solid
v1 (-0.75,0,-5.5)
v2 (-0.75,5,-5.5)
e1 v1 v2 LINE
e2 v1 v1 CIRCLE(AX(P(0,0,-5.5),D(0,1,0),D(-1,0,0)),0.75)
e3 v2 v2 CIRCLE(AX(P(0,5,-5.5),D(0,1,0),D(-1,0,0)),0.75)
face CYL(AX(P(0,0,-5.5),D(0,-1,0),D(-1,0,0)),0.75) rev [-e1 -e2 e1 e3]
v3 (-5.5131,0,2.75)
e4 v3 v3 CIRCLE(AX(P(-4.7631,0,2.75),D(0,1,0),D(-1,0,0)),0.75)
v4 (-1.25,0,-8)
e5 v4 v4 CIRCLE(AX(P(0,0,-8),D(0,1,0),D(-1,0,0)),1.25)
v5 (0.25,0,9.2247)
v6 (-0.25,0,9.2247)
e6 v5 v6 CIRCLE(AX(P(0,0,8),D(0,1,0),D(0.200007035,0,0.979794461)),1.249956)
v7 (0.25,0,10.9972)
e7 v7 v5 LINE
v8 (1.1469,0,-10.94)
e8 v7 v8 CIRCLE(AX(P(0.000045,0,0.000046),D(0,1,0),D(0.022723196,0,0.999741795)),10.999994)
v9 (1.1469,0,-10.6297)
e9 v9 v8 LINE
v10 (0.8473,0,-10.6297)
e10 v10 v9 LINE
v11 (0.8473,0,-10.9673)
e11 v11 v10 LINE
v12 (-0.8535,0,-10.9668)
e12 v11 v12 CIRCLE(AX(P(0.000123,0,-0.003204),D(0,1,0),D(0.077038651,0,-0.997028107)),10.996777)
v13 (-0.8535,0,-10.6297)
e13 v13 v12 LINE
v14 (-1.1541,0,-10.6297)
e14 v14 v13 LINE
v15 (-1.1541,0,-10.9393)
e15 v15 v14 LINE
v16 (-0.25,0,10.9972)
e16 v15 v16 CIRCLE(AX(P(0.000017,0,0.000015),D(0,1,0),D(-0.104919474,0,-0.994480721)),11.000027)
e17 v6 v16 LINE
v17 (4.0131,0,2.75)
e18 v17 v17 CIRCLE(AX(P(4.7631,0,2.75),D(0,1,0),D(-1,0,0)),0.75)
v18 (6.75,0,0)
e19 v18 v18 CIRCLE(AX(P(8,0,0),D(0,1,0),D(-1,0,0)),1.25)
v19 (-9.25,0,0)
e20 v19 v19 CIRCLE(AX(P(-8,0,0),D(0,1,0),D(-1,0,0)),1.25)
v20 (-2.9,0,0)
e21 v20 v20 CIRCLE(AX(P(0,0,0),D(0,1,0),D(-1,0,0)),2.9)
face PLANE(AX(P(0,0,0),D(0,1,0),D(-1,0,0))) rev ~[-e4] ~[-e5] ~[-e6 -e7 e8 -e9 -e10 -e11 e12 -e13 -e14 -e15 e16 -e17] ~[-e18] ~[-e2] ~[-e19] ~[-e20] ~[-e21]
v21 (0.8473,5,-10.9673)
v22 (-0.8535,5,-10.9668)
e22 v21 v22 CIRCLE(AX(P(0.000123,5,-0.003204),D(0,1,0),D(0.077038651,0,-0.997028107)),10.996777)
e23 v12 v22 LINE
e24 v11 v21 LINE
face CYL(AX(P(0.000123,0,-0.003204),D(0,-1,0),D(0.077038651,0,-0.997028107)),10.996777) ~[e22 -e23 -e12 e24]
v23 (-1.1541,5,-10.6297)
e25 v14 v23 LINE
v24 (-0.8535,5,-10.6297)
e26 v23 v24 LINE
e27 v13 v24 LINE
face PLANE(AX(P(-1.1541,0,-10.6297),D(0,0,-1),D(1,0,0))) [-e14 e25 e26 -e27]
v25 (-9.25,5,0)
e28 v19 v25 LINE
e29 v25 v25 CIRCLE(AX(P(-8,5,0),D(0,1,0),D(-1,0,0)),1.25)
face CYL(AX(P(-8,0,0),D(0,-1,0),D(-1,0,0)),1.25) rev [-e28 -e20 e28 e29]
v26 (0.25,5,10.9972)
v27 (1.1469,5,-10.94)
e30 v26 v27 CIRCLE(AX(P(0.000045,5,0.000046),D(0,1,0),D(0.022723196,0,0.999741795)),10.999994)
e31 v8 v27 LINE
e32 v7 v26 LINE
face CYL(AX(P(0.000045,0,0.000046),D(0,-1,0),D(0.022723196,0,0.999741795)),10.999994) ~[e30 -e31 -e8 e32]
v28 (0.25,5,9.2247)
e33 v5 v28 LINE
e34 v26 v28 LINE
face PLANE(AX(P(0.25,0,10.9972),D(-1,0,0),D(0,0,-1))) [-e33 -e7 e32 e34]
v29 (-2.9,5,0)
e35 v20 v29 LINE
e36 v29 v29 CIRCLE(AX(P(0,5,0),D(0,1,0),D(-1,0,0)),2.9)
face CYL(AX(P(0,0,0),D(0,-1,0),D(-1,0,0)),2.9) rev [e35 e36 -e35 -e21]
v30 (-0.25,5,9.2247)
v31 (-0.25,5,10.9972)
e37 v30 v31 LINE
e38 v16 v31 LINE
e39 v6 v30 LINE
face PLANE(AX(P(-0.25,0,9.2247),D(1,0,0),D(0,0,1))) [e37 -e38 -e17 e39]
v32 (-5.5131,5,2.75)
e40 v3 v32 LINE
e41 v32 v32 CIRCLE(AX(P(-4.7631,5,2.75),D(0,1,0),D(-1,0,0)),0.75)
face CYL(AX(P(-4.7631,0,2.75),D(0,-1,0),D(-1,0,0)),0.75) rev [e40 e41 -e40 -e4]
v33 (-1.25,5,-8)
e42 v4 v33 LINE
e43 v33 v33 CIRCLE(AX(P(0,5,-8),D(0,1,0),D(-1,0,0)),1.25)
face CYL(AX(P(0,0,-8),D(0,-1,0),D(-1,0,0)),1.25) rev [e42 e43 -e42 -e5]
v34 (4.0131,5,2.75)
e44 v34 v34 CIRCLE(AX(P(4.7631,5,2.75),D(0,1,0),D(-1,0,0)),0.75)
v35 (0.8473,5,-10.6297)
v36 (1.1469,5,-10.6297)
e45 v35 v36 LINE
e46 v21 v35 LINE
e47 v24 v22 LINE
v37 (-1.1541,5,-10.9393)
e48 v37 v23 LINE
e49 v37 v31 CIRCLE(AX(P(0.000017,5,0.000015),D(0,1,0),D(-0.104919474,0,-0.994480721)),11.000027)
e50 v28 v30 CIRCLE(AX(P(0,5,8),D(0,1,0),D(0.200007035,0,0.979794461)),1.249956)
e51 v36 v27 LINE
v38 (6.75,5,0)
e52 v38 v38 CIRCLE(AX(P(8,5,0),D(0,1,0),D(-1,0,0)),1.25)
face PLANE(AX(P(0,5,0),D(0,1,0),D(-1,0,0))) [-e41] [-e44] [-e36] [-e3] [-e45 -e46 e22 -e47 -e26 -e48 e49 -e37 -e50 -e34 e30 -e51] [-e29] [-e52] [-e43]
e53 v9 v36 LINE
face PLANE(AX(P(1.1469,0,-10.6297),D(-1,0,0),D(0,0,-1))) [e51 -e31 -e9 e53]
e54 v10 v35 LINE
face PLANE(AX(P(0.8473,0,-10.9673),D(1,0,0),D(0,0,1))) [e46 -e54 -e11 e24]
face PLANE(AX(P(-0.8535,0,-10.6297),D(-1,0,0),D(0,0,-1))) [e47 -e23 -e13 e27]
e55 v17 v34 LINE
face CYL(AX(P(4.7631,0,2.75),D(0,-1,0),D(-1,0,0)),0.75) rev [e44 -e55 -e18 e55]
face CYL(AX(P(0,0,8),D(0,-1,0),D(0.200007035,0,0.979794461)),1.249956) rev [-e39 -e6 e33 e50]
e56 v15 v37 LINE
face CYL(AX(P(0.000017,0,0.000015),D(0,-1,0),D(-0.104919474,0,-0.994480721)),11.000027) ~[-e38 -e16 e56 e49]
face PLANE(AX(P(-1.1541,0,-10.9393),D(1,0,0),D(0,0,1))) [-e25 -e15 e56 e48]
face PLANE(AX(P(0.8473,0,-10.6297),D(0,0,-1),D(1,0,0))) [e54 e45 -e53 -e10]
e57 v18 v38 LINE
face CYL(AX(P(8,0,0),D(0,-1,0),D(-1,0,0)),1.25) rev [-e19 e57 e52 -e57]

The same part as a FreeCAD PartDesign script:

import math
import FreeCAD as App
import Part
import Sketcher

V = App.Vector
Q = App.Units.Quantity

doc = App.newDocument("Part")
body = doc.addObject("PartDesign::Body", "Body")

# Sketch on XZ plane
sketch1 = body.newObject("Sketcher::SketchObject", "Sketch")
sketch1.AttachmentSupport = (doc.getObject("XZ_Plane"), [""])
sketch1.MapMode = "FlatFace"
sketch1.addGeometry([
    Part.ArcOfCircle(Part.Circle(V(0, 8, 0), V(0, 0, 1), 1.25), math.radians(102), math.radians(438)),  # 0
    Part.LineSegment(V(0.25, 9.22, 0), V(0.25, 11, 0)),  # 1
    Part.ArcOfCircle(Part.Circle(V(0, 0, 0), V(0, 0, 1), 11), math.radians(-84), math.radians(89)),  # 2
    Part.LineSegment(V(1.15, -10.94, 0), V(1.15, -10.63, 0)),  # 3
    Part.LineSegment(V(1.15, -10.63, 0), V(0.85, -10.63, 0)),  # 4
    Part.LineSegment(V(0.85, -10.63, 0), V(0.85, -10.97, 0)),  # 5
    Part.ArcOfCircle(Part.Circle(V(0, 0, 0), V(0, 0, 1), 11), math.radians(-94.45), math.radians(-85.58)),  # 6
    Part.LineSegment(V(-0.85, -10.97, 0), V(-0.85, -10.63, 0)),  # 7
    Part.LineSegment(V(-0.85, -10.63, 0), V(-1.15, -10.63, 0)),  # 8
    Part.LineSegment(V(-1.15, -10.63, 0), V(-1.15, -10.94, 0)),  # 9
    Part.ArcOfCircle(Part.Circle(V(0, 0, 0), V(0, 0, 1), 11), math.radians(91), math.radians(264)),  # 10
    Part.LineSegment(V(-0.25, 11, 0), V(-0.25, 9.22, 0)),  # 11
    Part.Circle(V(0, -8, 0), V(0, 0, 1), 1.25),  # 12
    Part.Circle(V(0, -5.5, 0), V(0, 0, 1), 0.75),  # 13
    Part.Circle(V(8, 0, 0), V(0, 0, 1), 1.25),  # 14
    Part.Circle(V(4.76, 2.75, 0), V(0, 0, 1), 0.75),  # 15
    Part.Circle(V(0, 0, 0), V(0, 0, 1), 2.9),  # 16
    Part.Circle(V(-4.76, 2.75, 0), V(0, 0, 1), 0.75),  # 17
    Part.Circle(V(-8, 0, 0), V(0, 0, 1), 1.25),  # 18
], False)
sketch1.addConstraint([
    Sketcher.Constraint("Coincident", 0, 2, 1, 1),
    Sketcher.Constraint("Coincident", 1, 2, 2, 2),
    Sketcher.Constraint("Coincident", 2, 1, 3, 1),
    Sketcher.Constraint("Coincident", 3, 2, 4, 1),
    Sketcher.Constraint("Coincident", 4, 2, 5, 1),
    Sketcher.Constraint("Coincident", 5, 2, 6, 2),
    Sketcher.Constraint("Coincident", 6, 1, 7, 1),
    Sketcher.Constraint("Coincident", 7, 2, 8, 1),
    Sketcher.Constraint("Coincident", 8, 2, 9, 1),
    Sketcher.Constraint("Coincident", 9, 2, 10, 2),
    Sketcher.Constraint("Coincident", 10, 1, 11, 1),
    Sketcher.Constraint("Coincident", 11, 2, 0, 1),
    Sketcher.Constraint("Vertical", 1),
    Sketcher.Constraint("Vertical", 3),
    Sketcher.Constraint("Horizontal", 4),
    Sketcher.Constraint("Vertical", 5),
    Sketcher.Constraint("Vertical", 7),
    Sketcher.Constraint("Horizontal", 8),
    Sketcher.Constraint("Vertical", 9),
    Sketcher.Constraint("Vertical", 11),
    Sketcher.Constraint("Coincident", 2, 3, -1, 1),
    Sketcher.Constraint("Coincident", 10, 3, -1, 1),
    Sketcher.Constraint("Coincident", 16, 3, -1, 1),
    Sketcher.Constraint("Equal", 2, 10),
    Sketcher.Constraint("Equal", 0, 12),
    Sketcher.Constraint("Equal", 12, 14),
    Sketcher.Constraint("Equal", 13, 15),
    Sketcher.Constraint("Equal", 15, 17),
    Sketcher.Constraint("Equal", 14, 18),
    Sketcher.Constraint("Symmetric", 0, 3, 12, 3, -1, 1),
    Sketcher.Constraint("Symmetric", 14, 3, 18, 3, -1, 1),
    Sketcher.Constraint("Symmetric", 15, 3, 17, 3, -2),
    Sketcher.Constraint("Symmetric", 0, 2, 11, 2, -2),
    Sketcher.Constraint("PointOnObject", 6, 3, -2),
    Sketcher.Constraint("PointOnObject", 13, 3, -2),
    Sketcher.Constraint("PointOnObject", 14, 3, -1),
    Sketcher.Constraint("Horizontal", 4, 2, 7, 2),
    Sketcher.Constraint("Radius", 2, Q("11 mm")),
    Sketcher.Constraint("Diameter", 12, Q("2.5 mm")),
    Sketcher.Constraint("Diameter", 13, Q("1.5 mm")),
    Sketcher.Constraint("Diameter", 16, Q("5.8 mm")),
    Sketcher.Constraint("DistanceY", -1, 1, 0, 3, Q("8 mm")),
    Sketcher.Constraint("DistanceX", -1, 1, 14, 3, Q("8 mm")),
    Sketcher.Constraint("DistanceY", 13, 3, -1, 1, Q("5.5 mm")),
    Sketcher.Constraint("Radius", 6, Q("10.9968 mm")),
    Sketcher.Constraint("DistanceX", 10, 1, 1, 2, Q("0.5 mm")),
    Sketcher.Constraint("DistanceY", 7, 1, 7, 2, Q("0.337 mm")),
    Sketcher.Constraint("DistanceY", -1, 1, 15, 3, Q("2.75 mm")),
    Sketcher.Constraint("DistanceY", 2, 1, -1, 1, Q("10.94 mm")),
    Sketcher.Constraint("DistanceX", 4, 2, 4, 1, Q("0.2996 mm")),
    Sketcher.Constraint("DistanceX", 8, 2, 8, 1, Q("0.3006 mm")),
    Sketcher.Constraint("DistanceY", 3, 1, 3, 2, Q("0.3103 mm")),
    Sketcher.Constraint("DistanceY", 5, 2, 5, 1, Q("0.3376 mm")),
    Sketcher.Constraint("DistanceX", -1, 1, 15, 3, Q("4.763 mm")),
])
pad1 = body.newObject("PartDesign::Pad", "Pad")
pad1.Profile = sketch1
pad1.Length = 5
pad1.Reversed = True

doc.recompute()
